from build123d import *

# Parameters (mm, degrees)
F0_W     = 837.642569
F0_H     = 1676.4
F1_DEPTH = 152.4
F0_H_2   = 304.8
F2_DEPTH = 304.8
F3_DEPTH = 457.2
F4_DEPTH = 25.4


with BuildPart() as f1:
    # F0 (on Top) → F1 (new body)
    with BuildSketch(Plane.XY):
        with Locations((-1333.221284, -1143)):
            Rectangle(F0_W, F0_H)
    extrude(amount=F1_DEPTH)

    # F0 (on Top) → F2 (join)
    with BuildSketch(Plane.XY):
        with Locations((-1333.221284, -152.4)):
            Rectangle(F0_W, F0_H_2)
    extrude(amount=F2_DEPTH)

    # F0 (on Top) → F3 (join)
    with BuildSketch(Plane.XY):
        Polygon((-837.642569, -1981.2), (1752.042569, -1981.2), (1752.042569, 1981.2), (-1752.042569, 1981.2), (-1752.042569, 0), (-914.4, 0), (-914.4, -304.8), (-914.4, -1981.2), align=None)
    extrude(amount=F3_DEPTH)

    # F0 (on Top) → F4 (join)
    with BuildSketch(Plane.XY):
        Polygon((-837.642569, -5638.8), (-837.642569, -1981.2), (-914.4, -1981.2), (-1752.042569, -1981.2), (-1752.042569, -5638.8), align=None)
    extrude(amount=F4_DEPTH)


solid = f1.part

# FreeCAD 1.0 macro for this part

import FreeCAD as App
import Part
import Sketcher
from FreeCAD import Vector
Q = App.Units.Quantity


def add_polygon(sketch, points):
    """Adds a closed chain of lines whose ends are joined by coincident constraints."""
    first, n = sketch.GeometryCount, len(points)
    for a, b in zip(points, points[1:] + points[:1]):
        sketch.addGeometry(Part.LineSegment(App.Vector(*a, 0), App.Vector(*b, 0)), False)
    for i in range(n):
        sketch.addConstraint(Sketcher.Constraint("Coincident", first + i, 2, first + (i + 1) % n, 1))

doc = App.newDocument("Part")
params = doc.addObject("Spreadsheet::Sheet", "Params")
for row, (alias, value) in enumerate([
    ("sketch1_height", "66 in"),
    ("pad1_length", "6 in"),
    ("sketch2_height", "12 in"),
    ("pad2_length", "12 in"),
    ("sketch3_height", "156 in"),
    ("pad3_length", "18 in"),
    ("sketch4_width", "36 in"),
    ("sketch4_height", "144 in"),
    ("pad4_length", "1 in"),
], start=1):
    params.set(f"A{row}", alias)
    params.set(f"B{row}", "=" + value)
    params.setAlias(f"B{row}", alias)

body = doc.addObject("PartDesign::Body", "Body")

sketch1 = doc.addObject("Sketcher::SketchObject", "Sketch")
body.addObject(sketch1)
sketch1.AttachmentSupport = (doc.XY_Plane, [""])
sketch1.MapMode = "FlatFace"
add_polygon(sketch1, [(-1752.042569, -304.8), (-1752.042569, -1981.2), (-914.4, -1981.2), (-914.4, -304.8)])
sketch1.addConstraint(Sketcher.Constraint("Vertical", 0))
sketch1.addConstraint(Sketcher.Constraint("Horizontal", 1))
sketch1.addConstraint(Sketcher.Constraint("Vertical", 2))
sketch1.addConstraint(Sketcher.Constraint("Horizontal", 3))
sketch1.addConstraint(Sketcher.Constraint("DistanceY", 0, 2, 0, 1, Q("66 in")))
sketch1.addConstraint(Sketcher.Constraint("DistanceY", 0, 2, -1, 1, Q("78 in")))
sketch1.addConstraint(Sketcher.Constraint("DistanceX", 1, 2, -1, 1, Q("36 in")))
sketch1.addConstraint(Sketcher.Constraint("DistanceX", 1, 1, 1, 2, 837.642569))
sketch1.setExpression("Constraints[8]", "Params.sketch1_height")
pad1 = doc.addObject("PartDesign::Pad", "Pad")
body.addObject(pad1)
pad1.Profile = sketch1
pad1.setExpression("Length", "Params.pad1_length")

sketch2 = doc.addObject("Sketcher::SketchObject", "Sketch001")
body.addObject(sketch2)
sketch2.AttachmentSupport = (doc.XY_Plane, [""])
sketch2.MapMode = "FlatFace"
add_polygon(sketch2, [(-1752.042569, 0), (-1752.042569, -304.8), (-914.4, -304.8), (-914.4, 0)])
sketch2.addConstraint(Sketcher.Constraint("Vertical", 0))
sketch2.addConstraint(Sketcher.Constraint("Horizontal", 1))
sketch2.addConstraint(Sketcher.Constraint("Vertical", 2))
sketch2.addConstraint(Sketcher.Constraint("Horizontal", 3))
sketch2.addConstraint(Sketcher.Constraint("PointOnObject", 2, 2, -1))
sketch2.addConstraint(Sketcher.Constraint("DistanceY", 0, 2, 0, 1, Q("12 in")))
sketch2.addConstraint(Sketcher.Constraint("DistanceX", 1, 2, -1, 1, Q("36 in")))
sketch2.addConstraint(Sketcher.Constraint("DistanceX", 1, 1, 1, 2, 837.642569))
sketch2.setExpression("Constraints[9]", "Params.sketch2_height")
pad2 = doc.addObject("PartDesign::Pad", "Pad001")
body.addObject(pad2)
pad2.Profile = sketch2
pad2.setExpression("Length", "Params.pad2_length")

sketch3 = doc.addObject("Sketcher::SketchObject", "Sketch002")
body.addObject(sketch3)
sketch3.AttachmentSupport = (doc.XY_Plane, [""])
sketch3.MapMode = "FlatFace"
add_polygon(sketch3, [(1752.042569, -1981.2), (1752.042569, 1981.2), (-1752.042569, 1981.2), (-1752.042569, 0), (-914.4, 0), (-914.4, -1981.2)])
sketch3.addConstraint(Sketcher.Constraint("Vertical", 0))
sketch3.addConstraint(Sketcher.Constraint("Horizontal", 1))
sketch3.addConstraint(Sketcher.Constraint("Vertical", 2))
sketch3.addConstraint(Sketcher.Constraint("Horizontal", 3))
sketch3.addConstraint(Sketcher.Constraint("Vertical", 4))
sketch3.addConstraint(Sketcher.Constraint("Horizontal", 5))
sketch3.addConstraint(Sketcher.Constraint("Symmetric", 1, 2, 5, 2, -1, 1))
sketch3.addConstraint(Sketcher.Constraint("PointOnObject", 2, 2, -1))
sketch3.addConstraint(Sketcher.Constraint("DistanceY", 0, 1, 0, 2, Q("156 in")))
sketch3.addConstraint(Sketcher.Constraint("DistanceX", 3, 2, -1, 1, Q("36 in")))
sketch3.addConstraint(Sketcher.Constraint("DistanceX", 3, 1, 3, 2, 837.642569))
sketch3.setExpression("Constraints[14]", "Params.sketch3_height")
pad3 = doc.addObject("PartDesign::Pad", "Pad002")
body.addObject(pad3)
pad3.Profile = sketch3
pad3.setExpression("Length", "Params.pad3_length")

sketch4 = doc.addObject("Sketcher::SketchObject", "Sketch003")
body.addObject(sketch4)
sketch4.AttachmentSupport = (doc.XY_Plane, [""])
sketch4.MapMode = "FlatFace"
add_polygon(sketch4, [(-837.642569, -5638.8), (-837.642569, -1981.2), (-1752.042569, -1981.2), (-1752.042569, -5638.8)])
sketch4.addConstraint(Sketcher.Constraint("Vertical", 0))
sketch4.addConstraint(Sketcher.Constraint("Horizontal", 1))
sketch4.addConstraint(Sketcher.Constraint("Vertical", 2))
sketch4.addConstraint(Sketcher.Constraint("Horizontal", 3))
sketch4.addConstraint(Sketcher.Constraint("DistanceX", 1, 2, 1, 1, Q("36 in")))
sketch4.addConstraint(Sketcher.Constraint("DistanceY", 0, 1, 0, 2, Q("144 in")))
sketch4.addConstraint(Sketcher.Constraint("DistanceY", 0, 2, -1, 1, Q("78 in")))
sketch4.addConstraint(Sketcher.Constraint("DistanceX", 0, 2, -1, 1, 837.642569))
sketch4.setExpression("Constraints[8]", "Params.sketch4_width")
sketch4.setExpression("Constraints[9]", "Params.sketch4_height")
pad4 = doc.addObject("PartDesign::Pad", "Pad003")
body.addObject(pad4)
pad4.Profile = sketch4
pad4.setExpression("Length", "Params.pad4_length")

doc.recompute()
